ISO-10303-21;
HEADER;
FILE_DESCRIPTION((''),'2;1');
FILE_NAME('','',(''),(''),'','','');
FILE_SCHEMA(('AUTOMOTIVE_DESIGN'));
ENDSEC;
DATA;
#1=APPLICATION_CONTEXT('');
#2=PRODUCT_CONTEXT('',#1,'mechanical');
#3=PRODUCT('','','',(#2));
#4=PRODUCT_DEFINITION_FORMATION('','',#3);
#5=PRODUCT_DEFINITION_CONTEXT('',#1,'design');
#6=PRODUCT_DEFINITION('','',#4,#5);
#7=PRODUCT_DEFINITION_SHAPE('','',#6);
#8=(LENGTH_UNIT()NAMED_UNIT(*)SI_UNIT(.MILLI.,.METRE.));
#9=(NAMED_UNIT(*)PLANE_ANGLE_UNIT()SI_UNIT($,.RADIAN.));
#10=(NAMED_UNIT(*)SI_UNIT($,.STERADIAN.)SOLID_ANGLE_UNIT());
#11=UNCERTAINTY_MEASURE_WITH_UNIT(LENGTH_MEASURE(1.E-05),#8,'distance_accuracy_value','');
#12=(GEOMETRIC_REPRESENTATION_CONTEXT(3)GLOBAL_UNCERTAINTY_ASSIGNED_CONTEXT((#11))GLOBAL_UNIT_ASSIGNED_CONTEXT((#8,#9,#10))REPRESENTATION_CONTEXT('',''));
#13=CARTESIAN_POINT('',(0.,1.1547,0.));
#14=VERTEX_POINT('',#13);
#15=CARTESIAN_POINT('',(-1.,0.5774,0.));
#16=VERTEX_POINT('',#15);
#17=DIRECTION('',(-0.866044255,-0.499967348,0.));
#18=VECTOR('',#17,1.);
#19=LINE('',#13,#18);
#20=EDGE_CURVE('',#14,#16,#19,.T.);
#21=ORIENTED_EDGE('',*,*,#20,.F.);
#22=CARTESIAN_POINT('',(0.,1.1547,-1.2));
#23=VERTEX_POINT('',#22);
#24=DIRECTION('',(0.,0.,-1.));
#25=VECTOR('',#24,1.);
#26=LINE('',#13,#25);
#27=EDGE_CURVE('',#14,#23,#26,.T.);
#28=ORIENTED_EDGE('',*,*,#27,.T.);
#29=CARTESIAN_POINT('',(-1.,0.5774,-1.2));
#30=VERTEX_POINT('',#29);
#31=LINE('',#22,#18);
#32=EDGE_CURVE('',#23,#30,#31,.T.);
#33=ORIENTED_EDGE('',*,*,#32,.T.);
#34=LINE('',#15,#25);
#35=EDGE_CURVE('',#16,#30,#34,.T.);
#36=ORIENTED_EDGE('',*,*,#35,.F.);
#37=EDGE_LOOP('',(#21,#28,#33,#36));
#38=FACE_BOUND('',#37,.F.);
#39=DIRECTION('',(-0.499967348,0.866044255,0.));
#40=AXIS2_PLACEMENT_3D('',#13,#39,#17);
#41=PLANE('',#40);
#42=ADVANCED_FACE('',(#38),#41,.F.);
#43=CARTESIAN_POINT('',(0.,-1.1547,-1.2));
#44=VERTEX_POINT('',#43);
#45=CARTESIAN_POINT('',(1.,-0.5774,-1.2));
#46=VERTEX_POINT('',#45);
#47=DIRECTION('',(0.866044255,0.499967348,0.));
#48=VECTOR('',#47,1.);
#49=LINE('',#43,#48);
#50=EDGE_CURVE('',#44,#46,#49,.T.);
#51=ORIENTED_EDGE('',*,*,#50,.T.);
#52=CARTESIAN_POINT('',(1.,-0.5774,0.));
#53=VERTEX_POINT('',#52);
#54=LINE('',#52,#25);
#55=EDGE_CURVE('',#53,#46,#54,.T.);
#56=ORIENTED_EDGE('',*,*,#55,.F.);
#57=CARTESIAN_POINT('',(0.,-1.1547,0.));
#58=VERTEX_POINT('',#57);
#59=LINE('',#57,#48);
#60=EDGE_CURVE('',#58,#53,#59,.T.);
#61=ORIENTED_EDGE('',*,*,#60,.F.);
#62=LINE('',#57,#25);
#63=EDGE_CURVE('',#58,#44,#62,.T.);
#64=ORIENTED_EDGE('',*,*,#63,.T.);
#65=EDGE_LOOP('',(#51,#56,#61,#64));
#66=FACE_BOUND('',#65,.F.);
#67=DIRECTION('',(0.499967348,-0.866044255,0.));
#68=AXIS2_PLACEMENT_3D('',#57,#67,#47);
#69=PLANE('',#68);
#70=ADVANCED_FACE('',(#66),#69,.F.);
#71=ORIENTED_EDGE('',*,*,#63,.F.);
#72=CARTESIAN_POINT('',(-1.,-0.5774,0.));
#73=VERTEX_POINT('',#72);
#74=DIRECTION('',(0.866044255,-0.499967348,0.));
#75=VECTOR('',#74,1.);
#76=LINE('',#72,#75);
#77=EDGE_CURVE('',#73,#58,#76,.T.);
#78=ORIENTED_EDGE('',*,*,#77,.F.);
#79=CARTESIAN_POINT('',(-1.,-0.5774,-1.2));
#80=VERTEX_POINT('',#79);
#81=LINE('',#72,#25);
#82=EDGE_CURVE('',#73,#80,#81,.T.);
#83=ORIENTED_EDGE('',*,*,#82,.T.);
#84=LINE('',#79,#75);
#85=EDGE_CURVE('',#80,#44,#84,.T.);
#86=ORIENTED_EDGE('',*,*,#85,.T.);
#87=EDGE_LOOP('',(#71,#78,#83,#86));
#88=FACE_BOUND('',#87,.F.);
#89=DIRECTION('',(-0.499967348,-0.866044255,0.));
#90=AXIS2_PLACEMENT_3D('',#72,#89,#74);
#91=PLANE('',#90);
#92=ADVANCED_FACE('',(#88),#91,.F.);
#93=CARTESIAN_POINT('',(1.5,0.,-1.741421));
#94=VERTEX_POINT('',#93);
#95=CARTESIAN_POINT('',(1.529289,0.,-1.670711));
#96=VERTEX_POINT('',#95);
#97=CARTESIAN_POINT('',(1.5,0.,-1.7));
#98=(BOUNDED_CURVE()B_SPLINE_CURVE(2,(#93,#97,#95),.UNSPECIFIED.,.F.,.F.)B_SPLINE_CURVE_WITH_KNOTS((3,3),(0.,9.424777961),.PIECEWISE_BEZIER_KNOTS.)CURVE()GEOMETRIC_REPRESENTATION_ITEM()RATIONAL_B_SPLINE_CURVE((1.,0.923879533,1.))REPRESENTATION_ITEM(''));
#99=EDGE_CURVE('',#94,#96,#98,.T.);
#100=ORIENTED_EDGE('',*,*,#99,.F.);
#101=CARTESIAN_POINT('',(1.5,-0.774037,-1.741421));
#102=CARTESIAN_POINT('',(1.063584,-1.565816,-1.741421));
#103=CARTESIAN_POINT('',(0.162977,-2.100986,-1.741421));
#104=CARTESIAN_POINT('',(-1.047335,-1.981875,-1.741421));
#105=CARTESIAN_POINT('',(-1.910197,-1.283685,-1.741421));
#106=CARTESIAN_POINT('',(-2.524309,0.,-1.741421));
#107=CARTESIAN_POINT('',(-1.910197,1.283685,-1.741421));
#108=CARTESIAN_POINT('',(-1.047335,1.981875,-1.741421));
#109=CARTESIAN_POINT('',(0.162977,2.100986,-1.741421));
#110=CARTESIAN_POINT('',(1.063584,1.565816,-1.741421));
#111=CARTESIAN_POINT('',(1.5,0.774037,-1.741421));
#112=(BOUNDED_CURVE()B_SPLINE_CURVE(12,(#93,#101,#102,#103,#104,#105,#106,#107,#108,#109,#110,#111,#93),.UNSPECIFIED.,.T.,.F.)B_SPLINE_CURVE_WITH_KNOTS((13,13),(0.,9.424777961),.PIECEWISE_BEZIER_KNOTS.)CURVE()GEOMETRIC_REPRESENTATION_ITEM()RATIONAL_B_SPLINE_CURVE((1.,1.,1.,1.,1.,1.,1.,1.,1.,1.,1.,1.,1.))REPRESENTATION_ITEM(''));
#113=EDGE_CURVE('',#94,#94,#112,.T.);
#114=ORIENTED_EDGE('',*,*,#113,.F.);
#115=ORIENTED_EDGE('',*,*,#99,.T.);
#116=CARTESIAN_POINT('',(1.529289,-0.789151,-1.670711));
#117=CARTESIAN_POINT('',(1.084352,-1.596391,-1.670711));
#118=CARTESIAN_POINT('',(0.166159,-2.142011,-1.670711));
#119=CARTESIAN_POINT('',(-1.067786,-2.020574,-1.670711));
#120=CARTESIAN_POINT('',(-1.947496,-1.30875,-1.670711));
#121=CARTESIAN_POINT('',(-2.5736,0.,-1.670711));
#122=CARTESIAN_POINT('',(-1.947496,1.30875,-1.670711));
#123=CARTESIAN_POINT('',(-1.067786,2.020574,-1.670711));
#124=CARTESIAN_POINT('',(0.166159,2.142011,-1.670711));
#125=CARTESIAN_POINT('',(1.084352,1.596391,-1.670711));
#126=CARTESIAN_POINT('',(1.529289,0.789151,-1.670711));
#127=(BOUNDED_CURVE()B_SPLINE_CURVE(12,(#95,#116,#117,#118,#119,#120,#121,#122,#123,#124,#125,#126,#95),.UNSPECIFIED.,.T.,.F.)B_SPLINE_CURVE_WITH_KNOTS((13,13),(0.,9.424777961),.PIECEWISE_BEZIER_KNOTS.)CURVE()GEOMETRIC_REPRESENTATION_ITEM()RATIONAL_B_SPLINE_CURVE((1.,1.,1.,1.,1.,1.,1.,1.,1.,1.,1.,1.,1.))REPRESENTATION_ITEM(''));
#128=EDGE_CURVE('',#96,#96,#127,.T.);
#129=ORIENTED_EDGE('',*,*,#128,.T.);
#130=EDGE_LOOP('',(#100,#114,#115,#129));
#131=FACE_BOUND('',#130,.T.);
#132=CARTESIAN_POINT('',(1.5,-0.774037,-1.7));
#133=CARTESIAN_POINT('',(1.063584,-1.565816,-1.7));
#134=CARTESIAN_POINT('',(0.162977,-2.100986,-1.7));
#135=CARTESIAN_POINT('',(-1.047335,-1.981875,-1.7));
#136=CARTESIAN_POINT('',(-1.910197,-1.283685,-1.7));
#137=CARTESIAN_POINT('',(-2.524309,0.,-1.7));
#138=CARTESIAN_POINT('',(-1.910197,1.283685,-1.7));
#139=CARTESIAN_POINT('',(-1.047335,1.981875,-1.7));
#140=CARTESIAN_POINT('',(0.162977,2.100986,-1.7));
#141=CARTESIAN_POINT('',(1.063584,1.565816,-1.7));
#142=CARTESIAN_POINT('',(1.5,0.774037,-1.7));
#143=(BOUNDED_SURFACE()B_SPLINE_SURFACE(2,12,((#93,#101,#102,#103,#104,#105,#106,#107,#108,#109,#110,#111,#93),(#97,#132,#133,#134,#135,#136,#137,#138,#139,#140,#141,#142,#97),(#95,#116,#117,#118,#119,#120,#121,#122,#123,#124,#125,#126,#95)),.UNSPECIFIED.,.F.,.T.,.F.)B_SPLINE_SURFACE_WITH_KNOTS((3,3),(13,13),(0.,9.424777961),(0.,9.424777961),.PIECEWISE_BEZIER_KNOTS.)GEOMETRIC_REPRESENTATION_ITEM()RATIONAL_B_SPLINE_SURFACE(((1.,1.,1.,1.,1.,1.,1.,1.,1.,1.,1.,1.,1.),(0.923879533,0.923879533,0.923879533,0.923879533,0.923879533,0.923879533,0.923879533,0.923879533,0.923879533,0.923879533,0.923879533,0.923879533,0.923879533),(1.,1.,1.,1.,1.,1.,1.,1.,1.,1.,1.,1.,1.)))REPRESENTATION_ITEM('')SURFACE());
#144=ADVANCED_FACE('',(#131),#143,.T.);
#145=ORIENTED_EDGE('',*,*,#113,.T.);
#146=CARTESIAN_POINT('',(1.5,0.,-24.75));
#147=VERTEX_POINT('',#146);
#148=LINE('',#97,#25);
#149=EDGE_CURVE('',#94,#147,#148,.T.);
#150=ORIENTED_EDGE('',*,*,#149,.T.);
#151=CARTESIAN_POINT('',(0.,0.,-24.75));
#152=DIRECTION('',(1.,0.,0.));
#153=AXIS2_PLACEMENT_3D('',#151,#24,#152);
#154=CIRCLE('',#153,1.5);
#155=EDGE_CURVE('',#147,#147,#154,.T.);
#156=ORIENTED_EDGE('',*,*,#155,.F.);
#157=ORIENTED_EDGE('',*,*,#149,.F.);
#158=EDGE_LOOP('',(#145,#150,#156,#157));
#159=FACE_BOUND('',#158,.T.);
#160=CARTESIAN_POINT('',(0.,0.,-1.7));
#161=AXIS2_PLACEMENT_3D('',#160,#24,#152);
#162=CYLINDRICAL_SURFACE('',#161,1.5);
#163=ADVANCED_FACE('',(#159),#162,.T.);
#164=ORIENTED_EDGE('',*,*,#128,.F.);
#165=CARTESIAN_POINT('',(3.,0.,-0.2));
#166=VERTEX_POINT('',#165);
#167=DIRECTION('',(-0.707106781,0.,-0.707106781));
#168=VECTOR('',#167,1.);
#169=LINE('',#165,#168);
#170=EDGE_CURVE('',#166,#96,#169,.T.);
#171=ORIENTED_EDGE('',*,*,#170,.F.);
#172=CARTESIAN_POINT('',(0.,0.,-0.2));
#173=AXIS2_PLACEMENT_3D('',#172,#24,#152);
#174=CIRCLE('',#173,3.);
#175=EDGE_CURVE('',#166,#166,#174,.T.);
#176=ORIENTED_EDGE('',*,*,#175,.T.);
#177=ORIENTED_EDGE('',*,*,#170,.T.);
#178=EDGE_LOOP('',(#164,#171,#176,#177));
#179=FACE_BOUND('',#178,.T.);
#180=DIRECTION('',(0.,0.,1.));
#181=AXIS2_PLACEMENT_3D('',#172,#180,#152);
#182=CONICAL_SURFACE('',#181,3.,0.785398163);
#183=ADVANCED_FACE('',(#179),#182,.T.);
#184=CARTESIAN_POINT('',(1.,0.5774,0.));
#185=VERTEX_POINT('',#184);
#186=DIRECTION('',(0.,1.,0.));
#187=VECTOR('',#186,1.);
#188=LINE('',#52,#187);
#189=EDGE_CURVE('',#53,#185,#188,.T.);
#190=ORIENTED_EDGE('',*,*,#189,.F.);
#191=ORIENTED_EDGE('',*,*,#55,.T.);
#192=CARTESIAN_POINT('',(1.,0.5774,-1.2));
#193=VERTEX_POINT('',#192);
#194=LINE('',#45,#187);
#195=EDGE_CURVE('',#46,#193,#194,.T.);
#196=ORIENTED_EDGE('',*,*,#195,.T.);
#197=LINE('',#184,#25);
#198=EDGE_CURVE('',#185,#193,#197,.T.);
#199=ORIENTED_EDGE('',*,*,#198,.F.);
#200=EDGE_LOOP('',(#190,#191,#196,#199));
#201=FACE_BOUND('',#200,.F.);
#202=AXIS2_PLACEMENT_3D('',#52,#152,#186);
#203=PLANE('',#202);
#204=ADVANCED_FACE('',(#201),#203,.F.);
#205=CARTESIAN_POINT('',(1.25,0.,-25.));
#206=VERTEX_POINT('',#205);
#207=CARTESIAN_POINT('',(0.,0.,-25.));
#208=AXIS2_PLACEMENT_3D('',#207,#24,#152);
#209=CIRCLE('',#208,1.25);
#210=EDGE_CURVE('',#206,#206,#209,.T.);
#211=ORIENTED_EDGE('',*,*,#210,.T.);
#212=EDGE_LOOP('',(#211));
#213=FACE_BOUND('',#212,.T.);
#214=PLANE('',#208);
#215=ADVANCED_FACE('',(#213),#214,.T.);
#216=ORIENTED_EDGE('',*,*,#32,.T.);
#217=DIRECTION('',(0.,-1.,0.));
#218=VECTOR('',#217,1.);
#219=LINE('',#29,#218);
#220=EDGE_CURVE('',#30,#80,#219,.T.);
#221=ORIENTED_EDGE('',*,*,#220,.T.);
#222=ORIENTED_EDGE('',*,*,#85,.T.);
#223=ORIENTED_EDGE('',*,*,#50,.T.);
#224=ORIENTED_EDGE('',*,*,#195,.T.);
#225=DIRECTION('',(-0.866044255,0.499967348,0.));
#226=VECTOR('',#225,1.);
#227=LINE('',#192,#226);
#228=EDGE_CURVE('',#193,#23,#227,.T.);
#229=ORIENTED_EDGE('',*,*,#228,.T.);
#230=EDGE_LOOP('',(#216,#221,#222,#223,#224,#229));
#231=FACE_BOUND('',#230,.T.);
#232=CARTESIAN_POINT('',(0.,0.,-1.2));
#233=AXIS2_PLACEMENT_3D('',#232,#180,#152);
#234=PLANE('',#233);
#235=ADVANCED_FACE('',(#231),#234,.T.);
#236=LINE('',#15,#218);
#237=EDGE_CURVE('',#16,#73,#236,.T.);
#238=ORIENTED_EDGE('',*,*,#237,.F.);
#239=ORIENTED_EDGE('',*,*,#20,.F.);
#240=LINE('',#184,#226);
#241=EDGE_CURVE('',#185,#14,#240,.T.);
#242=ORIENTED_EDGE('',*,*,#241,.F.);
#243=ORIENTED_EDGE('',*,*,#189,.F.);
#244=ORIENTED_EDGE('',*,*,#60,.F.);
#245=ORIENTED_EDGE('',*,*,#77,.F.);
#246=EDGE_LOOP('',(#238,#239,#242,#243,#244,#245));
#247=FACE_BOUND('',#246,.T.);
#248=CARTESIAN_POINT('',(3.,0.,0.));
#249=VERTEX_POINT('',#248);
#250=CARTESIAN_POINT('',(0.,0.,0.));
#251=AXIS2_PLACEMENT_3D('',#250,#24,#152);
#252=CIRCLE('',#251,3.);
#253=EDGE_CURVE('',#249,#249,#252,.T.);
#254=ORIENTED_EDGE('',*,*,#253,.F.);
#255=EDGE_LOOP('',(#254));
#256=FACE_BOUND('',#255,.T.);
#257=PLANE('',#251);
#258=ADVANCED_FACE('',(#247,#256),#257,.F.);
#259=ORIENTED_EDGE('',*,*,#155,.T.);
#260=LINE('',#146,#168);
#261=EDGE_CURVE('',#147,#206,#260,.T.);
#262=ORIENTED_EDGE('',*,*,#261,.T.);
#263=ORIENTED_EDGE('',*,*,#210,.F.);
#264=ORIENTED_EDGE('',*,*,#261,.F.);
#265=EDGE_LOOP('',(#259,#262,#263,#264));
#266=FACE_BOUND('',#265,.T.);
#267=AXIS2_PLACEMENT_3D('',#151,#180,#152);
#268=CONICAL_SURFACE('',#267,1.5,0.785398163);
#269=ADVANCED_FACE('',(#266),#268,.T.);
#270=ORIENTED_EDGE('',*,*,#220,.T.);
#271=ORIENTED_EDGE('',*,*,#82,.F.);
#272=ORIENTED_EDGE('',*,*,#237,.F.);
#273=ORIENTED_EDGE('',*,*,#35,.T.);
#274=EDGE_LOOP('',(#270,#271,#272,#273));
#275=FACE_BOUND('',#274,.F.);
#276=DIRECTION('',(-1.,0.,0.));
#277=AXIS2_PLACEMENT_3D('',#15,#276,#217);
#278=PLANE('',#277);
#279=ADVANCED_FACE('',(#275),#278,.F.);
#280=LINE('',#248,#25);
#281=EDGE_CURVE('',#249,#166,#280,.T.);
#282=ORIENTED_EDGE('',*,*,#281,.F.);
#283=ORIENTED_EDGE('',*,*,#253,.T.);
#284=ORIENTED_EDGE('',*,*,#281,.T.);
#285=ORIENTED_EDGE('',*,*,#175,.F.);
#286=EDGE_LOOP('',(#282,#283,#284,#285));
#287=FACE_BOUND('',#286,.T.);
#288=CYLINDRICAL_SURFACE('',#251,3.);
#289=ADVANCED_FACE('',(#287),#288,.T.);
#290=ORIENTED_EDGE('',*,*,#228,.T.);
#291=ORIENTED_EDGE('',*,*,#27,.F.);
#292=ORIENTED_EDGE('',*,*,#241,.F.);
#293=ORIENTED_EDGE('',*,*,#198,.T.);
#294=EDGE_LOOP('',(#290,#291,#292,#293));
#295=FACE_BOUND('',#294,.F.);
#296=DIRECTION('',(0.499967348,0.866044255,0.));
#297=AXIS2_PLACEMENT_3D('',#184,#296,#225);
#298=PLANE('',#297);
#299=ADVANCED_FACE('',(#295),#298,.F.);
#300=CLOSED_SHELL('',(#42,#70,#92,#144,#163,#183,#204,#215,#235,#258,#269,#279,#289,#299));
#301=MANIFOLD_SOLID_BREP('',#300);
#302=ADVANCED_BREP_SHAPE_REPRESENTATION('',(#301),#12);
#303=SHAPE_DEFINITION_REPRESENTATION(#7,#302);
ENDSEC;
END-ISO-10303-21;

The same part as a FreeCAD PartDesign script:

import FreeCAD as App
import Part
import Sketcher

V = App.Vector


def edges_at(feature, points):
    """Names of the edges that pass closest to the given points."""
    edges = feature.Shape.Edges
    near = lambda p: min(range(len(edges)), key=lambda i: edges[i].distToShape(Part.Vertex(*p))[0])
    return sorted({f"Edge{near(p) + 1}" for p in points})

doc = App.newDocument("Part")
body = doc.addObject("PartDesign::Body", "Body")

# Sketch on XZ plane
sketch1 = body.newObject("Sketcher::SketchObject", "Sketch")
sketch1.AttachmentSupport = (doc.getObject("XZ_Plane"), [""])
sketch1.MapMode = "FlatFace"
sketch1.addGeometry(Part.LineSegment(V(1.5, -1.7, 0), V(1.5, -25, 0)), False)
sketch1.addGeometry(Part.LineSegment(V(1.5, -25, 0), V(0, -25, 0)), False)
sketch1.addGeometry(Part.LineSegment(V(0, -25, 0), V(0, 0, 0)), False)
sketch1.addGeometry(Part.LineSegment(V(0, 0, 0), V(3, 0, 0)), False)
sketch1.addGeometry(Part.LineSegment(V(3, 0, 0), V(3, -0.2, 0)), False)
sketch1.addGeometry(Part.LineSegment(V(3, -0.2, 0), V(1.5, -1.7, 0)), False)
sketch1.addConstraint(Sketcher.Constraint("Coincident", 0, 2, 1, 1))
sketch1.addConstraint(Sketcher.Constraint("Coincident", 1, 2, 2, 1))
sketch1.addConstraint(Sketcher.Constraint("Coincident", 2, 2, 3, 1))
sketch1.addConstraint(Sketcher.Constraint("Coincident", 3, 2, 4, 1))
sketch1.addConstraint(Sketcher.Constraint("Coincident", 4, 2, 5, 1))
sketch1.addConstraint(Sketcher.Constraint("Coincident", 5, 2, 0, 1))
sketch1.addConstraint(Sketcher.Constraint("Vertical", 0))
sketch1.addConstraint(Sketcher.Constraint("Horizontal", 1))
sketch1.addConstraint(Sketcher.Constraint("Vertical", 2))
sketch1.addConstraint(Sketcher.Constraint("Horizontal", 3))
sketch1.addConstraint(Sketcher.Constraint("Vertical", 4))
sketch1.addConstraint(Sketcher.Constraint("Coincident", 2, 2, -1, 1))
sketch1.addConstraint(Sketcher.Constraint("DistanceX", 3, 1, 3, 2, 3.0))
sketch1.addConstraint(Sketcher.Constraint("DistanceY", 2, 1, 2, 2, 25.0))
sketch1.addConstraint(Sketcher.Constraint("DistanceX", 1, 2, 1, 1, 1.5))
sketch1.addConstraint(Sketcher.Constraint("DistanceY", 4, 2, 4, 1, 0.2))
sketch1.addConstraint(Sketcher.Constraint("DistanceY", 5, 2, 4, 2, 1.5))
revolution = body.newObject("PartDesign::Revolution", "Revolution")
revolution.Profile = sketch1
revolution.ReferenceAxis = (sketch1, ["V_Axis"])
revolution.Angle = 360

# Sketch on XY plane
sketch2 = body.newObject("Sketcher::SketchObject", "Sketch001")
sketch2.AttachmentSupport = (doc.getObject("XY_Plane"), [""])
sketch2.MapMode = "FlatFace"
sketch2.addGeometry(Part.LineSegment(V(0, 1.2, 0), V(-1, 0.6, 0)), False)
sketch2.addGeometry(Part.LineSegment(V(-1, 0.6, 0), V(-1, -0.6, 0)), False)
sketch2.addGeometry(Part.LineSegment(V(-1, -0.6, 0), V(0, -1.2, 0)), False)
sketch2.addGeometry(Part.LineSegment(V(0, -1.2, 0), V(1, -0.6, 0)), False)
sketch2.addGeometry(Part.LineSegment(V(1, -0.6, 0), V(1, 0.6, 0)), False)
sketch2.addGeometry(Part.LineSegment(V(1, 0.6, 0), V(0, 1.2, 0)), False)
sketch2.addConstraint(Sketcher.Constraint("Coincident", 0, 2, 1, 1))
sketch2.addConstraint(Sketcher.Constraint("Coincident", 1, 2, 2, 1))
sketch2.addConstraint(Sketcher.Constraint("Coincident", 2, 2, 3, 1))
sketch2.addConstraint(Sketcher.Constraint("Coincident", 3, 2, 4, 1))
sketch2.addConstraint(Sketcher.Constraint("Coincident", 4, 2, 5, 1))
sketch2.addConstraint(Sketcher.Constraint("Coincident", 5, 2, 0, 1))
sketch2.addConstraint(Sketcher.Constraint("Vertical", 1))
sketch2.addConstraint(Sketcher.Constraint("Vertical", 4))
sketch2.addConstraint(Sketcher.Constraint("Symmetric", 0, 2, 3, 2, -1, 1))
sketch2.addConstraint(Sketcher.Constraint("Symmetric", 2, 2, 5, 2, -1, 1))
sketch2.addConstraint(Sketcher.Constraint("PointOnObject", 2, 2, -2))
sketch2.addConstraint(Sketcher.Constraint("Parallel", 2, 5))
sketch2.addConstraint(Sketcher.Constraint("Horizontal", 1, 2, 3, 2))
sketch2.addConstraint(Sketcher.Constraint("DistanceX", 1, 2, 3, 2, 2.0))
sketch2.addConstraint(Sketcher.Constraint("DistanceY", 1, 2, 1, 1, 1.1548))
sketch2.addConstraint(Sketcher.Constraint("DistanceY", 2, 2, 0, 2, 1.732))
pocket1 = body.newObject("PartDesign::Pocket", "Pocket")
pocket1.Profile = sketch2
pocket1.Length = 1.2
doc.recompute()

fillet = body.newObject("PartDesign::Fillet", "Fillet")
fillet.Base = (pocket1, edges_at(pocket1, [(-1.5, 0, -1.7)]))
fillet.Radius = 0.1
doc.recompute()

chamfer = body.newObject("PartDesign::Chamfer", "Chamfer")
chamfer.Base = (fillet, edges_at(fillet, [(-1.5, 0, -25)]))
chamfer.Size = 0.25

doc.recompute()
